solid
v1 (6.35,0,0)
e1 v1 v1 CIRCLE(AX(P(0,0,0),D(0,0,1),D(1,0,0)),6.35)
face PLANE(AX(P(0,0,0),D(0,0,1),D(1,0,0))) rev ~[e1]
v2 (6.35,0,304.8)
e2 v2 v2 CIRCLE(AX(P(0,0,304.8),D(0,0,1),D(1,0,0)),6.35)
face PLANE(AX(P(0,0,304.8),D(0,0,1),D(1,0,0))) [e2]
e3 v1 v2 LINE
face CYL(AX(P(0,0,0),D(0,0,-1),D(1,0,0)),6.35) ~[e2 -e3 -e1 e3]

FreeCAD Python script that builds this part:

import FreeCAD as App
import Part
import Sketcher

V = App.Vector
Q = App.Units.Quantity

doc = App.newDocument("Part")
body = doc.addObject("PartDesign::Body", "Body")

# Sketch on XY plane
sketch1 = body.newObject("Sketcher::SketchObject", "Sketch")
sketch1.AttachmentSupport = (doc.getObject("XY_Plane"), [""])
sketch1.MapMode = "FlatFace"
sketch1.addGeometry(Part.Circle(V(0, 0, 0), V(0, 0, 1), 6.35), False)
sketch1.addConstraint([
    Sketcher.Constraint("Coincident", 0, 3, -1, 1),
    Sketcher.Constraint("Diameter", 0, Q("0.5 in")),
])
pad1 = body.newObject("PartDesign::Pad", "Pad")
pad1.Profile = sketch1
pad1.Length = Q("12 in")

doc.recompute()
